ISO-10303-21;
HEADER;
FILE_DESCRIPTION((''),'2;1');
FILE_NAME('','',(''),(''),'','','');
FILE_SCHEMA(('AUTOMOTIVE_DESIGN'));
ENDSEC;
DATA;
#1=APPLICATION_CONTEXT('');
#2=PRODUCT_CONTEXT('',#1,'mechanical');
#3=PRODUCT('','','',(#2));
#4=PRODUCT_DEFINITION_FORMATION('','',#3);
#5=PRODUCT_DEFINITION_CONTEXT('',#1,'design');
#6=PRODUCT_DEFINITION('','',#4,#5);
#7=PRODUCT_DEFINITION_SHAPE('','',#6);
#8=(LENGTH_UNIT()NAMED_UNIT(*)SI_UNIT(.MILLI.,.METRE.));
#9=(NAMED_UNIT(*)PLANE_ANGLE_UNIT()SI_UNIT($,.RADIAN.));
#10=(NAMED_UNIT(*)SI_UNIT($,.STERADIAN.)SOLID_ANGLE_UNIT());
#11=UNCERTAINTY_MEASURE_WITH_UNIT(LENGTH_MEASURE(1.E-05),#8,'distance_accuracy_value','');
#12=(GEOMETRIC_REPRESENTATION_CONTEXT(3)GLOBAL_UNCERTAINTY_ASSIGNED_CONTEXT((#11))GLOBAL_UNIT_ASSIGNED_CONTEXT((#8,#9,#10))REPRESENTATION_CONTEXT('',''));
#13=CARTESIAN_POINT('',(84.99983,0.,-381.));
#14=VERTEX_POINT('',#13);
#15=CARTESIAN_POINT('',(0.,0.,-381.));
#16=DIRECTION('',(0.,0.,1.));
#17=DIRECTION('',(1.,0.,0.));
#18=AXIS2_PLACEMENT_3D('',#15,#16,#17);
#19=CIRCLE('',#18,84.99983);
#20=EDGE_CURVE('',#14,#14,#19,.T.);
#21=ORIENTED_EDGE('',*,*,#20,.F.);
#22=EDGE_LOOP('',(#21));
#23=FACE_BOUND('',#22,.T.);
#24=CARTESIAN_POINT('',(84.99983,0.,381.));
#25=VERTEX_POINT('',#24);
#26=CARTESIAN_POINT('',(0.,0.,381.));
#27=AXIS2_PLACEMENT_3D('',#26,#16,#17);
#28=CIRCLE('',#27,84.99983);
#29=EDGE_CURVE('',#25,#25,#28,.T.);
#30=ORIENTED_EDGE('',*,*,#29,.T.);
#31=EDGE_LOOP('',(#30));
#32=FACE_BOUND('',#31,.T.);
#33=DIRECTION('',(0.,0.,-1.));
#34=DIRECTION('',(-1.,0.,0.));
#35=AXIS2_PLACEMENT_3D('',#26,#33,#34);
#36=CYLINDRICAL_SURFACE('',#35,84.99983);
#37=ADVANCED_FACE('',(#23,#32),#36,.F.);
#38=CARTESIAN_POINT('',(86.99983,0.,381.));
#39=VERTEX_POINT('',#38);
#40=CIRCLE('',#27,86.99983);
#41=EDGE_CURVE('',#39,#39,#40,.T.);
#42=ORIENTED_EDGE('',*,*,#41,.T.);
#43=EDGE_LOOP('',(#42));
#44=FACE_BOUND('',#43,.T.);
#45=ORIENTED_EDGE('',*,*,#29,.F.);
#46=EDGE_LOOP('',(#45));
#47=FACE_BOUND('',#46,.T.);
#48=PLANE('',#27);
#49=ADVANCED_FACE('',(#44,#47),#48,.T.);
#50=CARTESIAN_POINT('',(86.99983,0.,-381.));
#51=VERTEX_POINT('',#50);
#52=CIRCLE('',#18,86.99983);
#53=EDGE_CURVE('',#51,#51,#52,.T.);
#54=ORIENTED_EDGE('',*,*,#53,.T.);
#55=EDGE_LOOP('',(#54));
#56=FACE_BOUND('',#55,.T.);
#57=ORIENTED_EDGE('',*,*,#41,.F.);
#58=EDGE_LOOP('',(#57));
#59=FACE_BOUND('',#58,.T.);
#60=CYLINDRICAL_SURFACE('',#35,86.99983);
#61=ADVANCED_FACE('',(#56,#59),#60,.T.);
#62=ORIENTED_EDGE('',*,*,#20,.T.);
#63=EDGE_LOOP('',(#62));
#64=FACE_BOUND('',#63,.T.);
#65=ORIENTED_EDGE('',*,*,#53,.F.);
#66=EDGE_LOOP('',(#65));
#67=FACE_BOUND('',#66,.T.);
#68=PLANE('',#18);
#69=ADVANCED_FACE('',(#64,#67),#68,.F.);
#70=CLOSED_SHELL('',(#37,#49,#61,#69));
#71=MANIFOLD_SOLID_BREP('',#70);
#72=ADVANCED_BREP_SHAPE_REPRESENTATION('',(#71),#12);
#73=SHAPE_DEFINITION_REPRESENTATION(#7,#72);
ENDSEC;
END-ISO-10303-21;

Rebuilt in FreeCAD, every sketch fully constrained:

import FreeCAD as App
import Part
import Sketcher
from FreeCAD import Vector
Q = App.Units.Quantity

doc = App.newDocument("Part")
body = doc.addObject("PartDesign::Body", "Body")

sketch1 = body.newObject("Sketcher::SketchObject", "Sketch")
sketch1.AttachmentSupport = (doc.getObject("XY_Plane"), [""])
sketch1.MapMode = "FlatFace"
sketch1.addGeometry(Part.Circle(Vector(0, 0, 0), Vector(0, 0, 1), 87), False)
sketch1.addGeometry(Part.Circle(Vector(0, 0, 0), Vector(0, 0, 1), 85), False)
sketch1.addConstraint(Sketcher.Constraint("Coincident", 0, 3, -1, 1))
sketch1.addConstraint(Sketcher.Constraint("Coincident", 1, 3, -1, 1))
sketch1.addConstraint(Sketcher.Constraint("Diameter", 1, Q("6.6929 in")))
sketch1.addConstraint(Sketcher.Constraint("Diameter", 0, 173.99966))
pad1 = body.newObject("PartDesign::Pad", "Pad")
pad1.Profile = sketch1
pad1.Length = Q("30 in")
pad1.Midplane = True

doc.recompute()
